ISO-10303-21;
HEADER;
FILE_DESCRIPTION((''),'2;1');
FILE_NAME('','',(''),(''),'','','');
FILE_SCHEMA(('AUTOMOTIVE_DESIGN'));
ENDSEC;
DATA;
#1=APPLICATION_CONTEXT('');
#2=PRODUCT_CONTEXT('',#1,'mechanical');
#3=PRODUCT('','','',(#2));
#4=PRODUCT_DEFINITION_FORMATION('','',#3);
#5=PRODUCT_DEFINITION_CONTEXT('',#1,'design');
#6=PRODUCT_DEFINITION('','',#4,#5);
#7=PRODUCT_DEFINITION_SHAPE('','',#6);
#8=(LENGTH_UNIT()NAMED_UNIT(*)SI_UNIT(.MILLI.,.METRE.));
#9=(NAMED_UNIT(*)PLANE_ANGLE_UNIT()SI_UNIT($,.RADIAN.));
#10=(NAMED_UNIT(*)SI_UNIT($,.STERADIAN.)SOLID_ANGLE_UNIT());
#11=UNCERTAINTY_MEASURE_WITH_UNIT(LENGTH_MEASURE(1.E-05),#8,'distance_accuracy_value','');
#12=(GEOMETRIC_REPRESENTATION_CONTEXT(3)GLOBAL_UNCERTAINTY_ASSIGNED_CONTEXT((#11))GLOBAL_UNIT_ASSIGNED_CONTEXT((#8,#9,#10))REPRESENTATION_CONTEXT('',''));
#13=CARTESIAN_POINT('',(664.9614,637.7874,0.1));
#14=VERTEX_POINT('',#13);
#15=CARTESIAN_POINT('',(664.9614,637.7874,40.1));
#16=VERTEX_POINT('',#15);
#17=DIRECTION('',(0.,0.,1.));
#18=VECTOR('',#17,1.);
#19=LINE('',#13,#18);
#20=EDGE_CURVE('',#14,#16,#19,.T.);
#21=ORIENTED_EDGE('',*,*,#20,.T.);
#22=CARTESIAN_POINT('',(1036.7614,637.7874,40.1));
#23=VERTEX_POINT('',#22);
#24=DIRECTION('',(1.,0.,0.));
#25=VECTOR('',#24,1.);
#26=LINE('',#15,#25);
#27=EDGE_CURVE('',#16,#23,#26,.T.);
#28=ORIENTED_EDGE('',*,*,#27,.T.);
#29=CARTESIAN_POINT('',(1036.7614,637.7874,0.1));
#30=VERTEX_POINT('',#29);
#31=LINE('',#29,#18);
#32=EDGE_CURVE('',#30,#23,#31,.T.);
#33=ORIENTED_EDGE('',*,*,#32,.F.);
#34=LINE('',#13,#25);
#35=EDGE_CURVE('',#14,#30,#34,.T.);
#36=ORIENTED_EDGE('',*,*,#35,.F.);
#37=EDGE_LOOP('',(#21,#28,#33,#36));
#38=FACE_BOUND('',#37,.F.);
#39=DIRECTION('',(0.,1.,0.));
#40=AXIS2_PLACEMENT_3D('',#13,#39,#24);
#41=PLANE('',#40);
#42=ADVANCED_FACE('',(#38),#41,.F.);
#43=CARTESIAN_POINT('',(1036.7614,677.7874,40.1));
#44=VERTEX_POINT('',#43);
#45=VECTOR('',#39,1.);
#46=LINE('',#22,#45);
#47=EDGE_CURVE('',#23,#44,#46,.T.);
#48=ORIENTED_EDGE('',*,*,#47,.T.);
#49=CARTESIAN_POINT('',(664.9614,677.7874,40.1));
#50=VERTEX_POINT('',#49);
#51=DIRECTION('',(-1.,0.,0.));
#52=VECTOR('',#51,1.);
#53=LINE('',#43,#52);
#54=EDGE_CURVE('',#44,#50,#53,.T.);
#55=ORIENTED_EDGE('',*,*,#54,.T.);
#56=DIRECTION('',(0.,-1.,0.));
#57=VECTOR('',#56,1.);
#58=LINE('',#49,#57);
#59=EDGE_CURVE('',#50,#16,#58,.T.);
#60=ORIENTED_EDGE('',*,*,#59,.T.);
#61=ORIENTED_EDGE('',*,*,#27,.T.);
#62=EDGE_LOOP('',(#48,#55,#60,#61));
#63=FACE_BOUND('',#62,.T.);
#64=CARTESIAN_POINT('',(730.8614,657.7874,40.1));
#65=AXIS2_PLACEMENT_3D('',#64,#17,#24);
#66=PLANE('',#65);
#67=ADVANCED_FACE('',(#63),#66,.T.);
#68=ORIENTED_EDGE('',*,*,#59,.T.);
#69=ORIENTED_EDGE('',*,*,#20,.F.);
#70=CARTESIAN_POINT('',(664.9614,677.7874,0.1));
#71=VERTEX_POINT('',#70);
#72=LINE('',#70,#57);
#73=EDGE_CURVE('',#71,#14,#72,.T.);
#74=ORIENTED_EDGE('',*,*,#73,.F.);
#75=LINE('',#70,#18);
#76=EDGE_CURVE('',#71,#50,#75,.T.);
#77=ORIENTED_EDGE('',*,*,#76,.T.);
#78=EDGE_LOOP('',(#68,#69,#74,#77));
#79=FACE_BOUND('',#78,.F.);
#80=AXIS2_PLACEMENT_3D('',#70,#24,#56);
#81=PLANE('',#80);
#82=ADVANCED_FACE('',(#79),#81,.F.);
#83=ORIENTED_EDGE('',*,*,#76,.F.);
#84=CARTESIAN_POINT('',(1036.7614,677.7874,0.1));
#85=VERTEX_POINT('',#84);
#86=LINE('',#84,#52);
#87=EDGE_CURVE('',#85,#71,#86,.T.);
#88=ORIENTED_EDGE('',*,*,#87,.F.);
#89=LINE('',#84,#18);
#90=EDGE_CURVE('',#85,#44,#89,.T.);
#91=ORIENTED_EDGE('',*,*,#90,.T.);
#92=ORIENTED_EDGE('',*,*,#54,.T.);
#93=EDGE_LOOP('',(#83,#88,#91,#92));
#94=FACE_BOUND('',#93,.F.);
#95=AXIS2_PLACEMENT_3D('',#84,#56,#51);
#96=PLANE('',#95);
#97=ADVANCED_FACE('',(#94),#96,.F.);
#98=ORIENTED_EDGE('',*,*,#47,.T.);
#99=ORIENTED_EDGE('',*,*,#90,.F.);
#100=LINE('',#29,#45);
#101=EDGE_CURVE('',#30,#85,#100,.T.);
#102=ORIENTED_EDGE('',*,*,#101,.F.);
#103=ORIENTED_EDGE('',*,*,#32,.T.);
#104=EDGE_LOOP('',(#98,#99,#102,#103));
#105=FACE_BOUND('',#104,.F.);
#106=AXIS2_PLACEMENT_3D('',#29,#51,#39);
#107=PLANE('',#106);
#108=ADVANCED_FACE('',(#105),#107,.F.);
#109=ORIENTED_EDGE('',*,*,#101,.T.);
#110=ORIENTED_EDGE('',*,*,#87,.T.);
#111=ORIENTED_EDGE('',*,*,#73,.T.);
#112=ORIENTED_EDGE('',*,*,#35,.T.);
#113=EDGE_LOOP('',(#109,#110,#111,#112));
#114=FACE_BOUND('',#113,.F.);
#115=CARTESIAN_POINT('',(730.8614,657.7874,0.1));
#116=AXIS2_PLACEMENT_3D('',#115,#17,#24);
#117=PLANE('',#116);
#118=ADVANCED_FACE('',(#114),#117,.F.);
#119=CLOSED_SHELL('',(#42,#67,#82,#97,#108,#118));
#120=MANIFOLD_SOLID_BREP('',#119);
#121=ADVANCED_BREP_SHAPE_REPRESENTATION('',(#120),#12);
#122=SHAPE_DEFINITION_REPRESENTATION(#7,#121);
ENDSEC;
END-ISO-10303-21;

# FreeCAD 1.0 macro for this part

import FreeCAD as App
import Part
import Sketcher

doc = App.newDocument("Part")
params = doc.addObject("Spreadsheet::Sheet", "Params")
for row, (alias, value) in enumerate([
    ("sketch1_height", "40 mm"),
    ("sketch1_width", "371.8 mm"),
    ("pad1_length", "40 mm"),
], start=1):
    params.set(f"A{row}", alias)
    params.set(f"B{row}", "=" + value)
    params.setAlias(f"B{row}", alias)

body = doc.addObject("PartDesign::Body", "Body")

sketch1 = doc.addObject("Sketcher::SketchObject", "Sketch")
body.addObject(sketch1)
sketch1.AttachmentSupport = (doc.XY_Plane, [""])
sketch1.MapMode = "FlatFace"
sketch1.AttachmentOffset = App.Placement(App.Vector(0, 0, 0.1), App.Rotation())
sketch1.addGeometry([
    Part.LineSegment(App.Vector(1037, 638, 0), App.Vector(1037, 678, 0)),
    Part.LineSegment(App.Vector(1037, 678, 0), App.Vector(665, 678, 0)),
    Part.LineSegment(App.Vector(665, 678, 0), App.Vector(665, 638, 0)),
    Part.LineSegment(App.Vector(665, 638, 0), App.Vector(1037, 638, 0)),
], False)
sketch1.addConstraint([
    Sketcher.Constraint("Coincident", 0, 2, 1, 1),
    Sketcher.Constraint("Coincident", 1, 2, 2, 1),
    Sketcher.Constraint("Coincident", 2, 2, 3, 1),
    Sketcher.Constraint("Coincident", 3, 2, 0, 1),
    Sketcher.Constraint("Vertical", 0),
    Sketcher.Constraint("Horizontal", 1),
    Sketcher.Constraint("Vertical", 2),
    Sketcher.Constraint("Horizontal", 3),
    Sketcher.Constraint("DistanceY", 0, 1, 0, 2, 40.0),
    Sketcher.Constraint("DistanceX", 1, 2, 1, 1, 371.8),
    Sketcher.Constraint("DistanceX", -1, 1, 0, 2, 1036.7614),
    Sketcher.Constraint("DistanceY", -1, 1, 0, 2, 677.7874),
])
sketch1.setExpression("Constraints[8]", "Params.sketch1_height")
sketch1.setExpression("Constraints[9]", "Params.sketch1_width")
pad1 = doc.addObject("PartDesign::Pad", "Pad")
body.addObject(pad1)
pad1.Profile = sketch1
pad1.setExpression("Length", "Params.pad1_length")

doc.recompute()
